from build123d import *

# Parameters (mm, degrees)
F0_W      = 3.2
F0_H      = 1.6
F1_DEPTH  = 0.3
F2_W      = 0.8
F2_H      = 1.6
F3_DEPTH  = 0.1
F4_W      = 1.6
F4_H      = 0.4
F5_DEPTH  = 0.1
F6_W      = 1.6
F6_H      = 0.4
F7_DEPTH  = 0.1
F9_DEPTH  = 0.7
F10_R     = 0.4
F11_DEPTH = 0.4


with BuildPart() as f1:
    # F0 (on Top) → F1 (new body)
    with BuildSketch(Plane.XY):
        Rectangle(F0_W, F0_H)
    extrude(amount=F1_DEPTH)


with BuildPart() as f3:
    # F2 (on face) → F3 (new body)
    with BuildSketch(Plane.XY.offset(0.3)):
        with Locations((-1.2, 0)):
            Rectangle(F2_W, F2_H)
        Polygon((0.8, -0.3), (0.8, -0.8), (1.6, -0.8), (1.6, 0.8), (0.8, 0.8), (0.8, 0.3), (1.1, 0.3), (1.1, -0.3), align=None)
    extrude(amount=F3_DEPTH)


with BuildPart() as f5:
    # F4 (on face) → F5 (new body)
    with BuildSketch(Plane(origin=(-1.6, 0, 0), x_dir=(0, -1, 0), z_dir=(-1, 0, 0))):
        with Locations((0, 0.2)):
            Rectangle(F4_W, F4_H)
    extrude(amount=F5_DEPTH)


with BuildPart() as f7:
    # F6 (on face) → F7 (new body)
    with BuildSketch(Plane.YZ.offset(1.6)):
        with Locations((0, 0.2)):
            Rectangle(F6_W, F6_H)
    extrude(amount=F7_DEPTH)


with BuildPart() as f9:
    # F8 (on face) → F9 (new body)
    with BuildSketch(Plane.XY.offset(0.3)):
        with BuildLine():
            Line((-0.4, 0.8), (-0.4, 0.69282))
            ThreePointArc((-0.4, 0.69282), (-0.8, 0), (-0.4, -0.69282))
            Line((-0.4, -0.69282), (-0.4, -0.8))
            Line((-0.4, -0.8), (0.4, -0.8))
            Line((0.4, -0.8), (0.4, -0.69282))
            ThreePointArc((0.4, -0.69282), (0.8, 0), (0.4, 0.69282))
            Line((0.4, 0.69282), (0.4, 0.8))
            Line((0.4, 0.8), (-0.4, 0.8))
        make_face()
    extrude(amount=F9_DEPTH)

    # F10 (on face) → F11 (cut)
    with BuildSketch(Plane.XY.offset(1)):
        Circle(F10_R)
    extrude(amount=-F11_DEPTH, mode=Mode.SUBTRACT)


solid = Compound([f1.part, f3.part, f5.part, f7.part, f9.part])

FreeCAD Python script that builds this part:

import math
import FreeCAD as App
import Part
import Sketcher
from FreeCAD import Vector
Q = App.Units.Quantity

doc = App.newDocument("Part")
body = doc.addObject("PartDesign::Body", "Body")

sketch1 = body.newObject("Sketcher::SketchObject", "Sketch")
sketch1.AttachmentSupport = (doc.getObject("XY_Plane"), [""])
sketch1.MapMode = "FlatFace"
sketch1.addGeometry([
    Part.LineSegment(Vector(-1.6, 0.8, 0), Vector(-1.6, -0.8, 0)),
    Part.LineSegment(Vector(-1.6, -0.8, 0), Vector(1.6, -0.8, 0)),
    Part.LineSegment(Vector(1.6, -0.8, 0), Vector(1.6, 0.8, 0)),
    Part.LineSegment(Vector(1.6, 0.8, 0), Vector(-1.6, 0.8, 0)),
], False)
sketch1.addConstraint([
    Sketcher.Constraint("Coincident", 0, 2, 1, 1),
    Sketcher.Constraint("Coincident", 1, 2, 2, 1),
    Sketcher.Constraint("Coincident", 2, 2, 3, 1),
    Sketcher.Constraint("Coincident", 3, 2, 0, 1),
    Sketcher.Constraint("Vertical", 0),
    Sketcher.Constraint("Horizontal", 1),
    Sketcher.Constraint("Vertical", 2),
    Sketcher.Constraint("Horizontal", 3),
    Sketcher.Constraint("Symmetric", 0, 2, 2, 2, -1, 1),
    Sketcher.Constraint("DistanceX", 1, 1, 1, 2, Q("3.2 mm")),
    Sketcher.Constraint("DistanceY", 0, 2, 0, 1, Q("1.6 mm")),
])
pad1 = body.newObject("PartDesign::Pad", "Pad")
pad1.Profile = sketch1
pad1.Length = 0.3
body2 = doc.addObject("PartDesign::Body", "Body001")
body2.AllowCompound = True

sketch2 = body2.newObject("Sketcher::SketchObject", "Sketch001")
sketch2.AttachmentSupport = (doc.getObject("XY_Plane001"), [""])
sketch2.MapMode = "FlatFace"
sketch2.AttachmentOffset = App.Placement(Vector(0, 0, 0.3), App.Rotation())
sketch2.addGeometry([
    Part.LineSegment(Vector(-1.6, 0.8, 0), Vector(-1.6, -0.8, 0)),
    Part.LineSegment(Vector(-1.6, -0.8, 0), Vector(-0.8, -0.8, 0)),
    Part.LineSegment(Vector(-0.8, -0.8, 0), Vector(-0.8, 0.8, 0)),
    Part.LineSegment(Vector(-0.8, 0.8, 0), Vector(-1.6, 0.8, 0)),
    Part.LineSegment(Vector(0.8, -0.3, 0), Vector(0.8, -0.8, 0)),
    Part.LineSegment(Vector(0.8, -0.8, 0), Vector(1.6, -0.8, 0)),
    Part.LineSegment(Vector(1.6, -0.8, 0), Vector(1.6, 0.8, 0)),
    Part.LineSegment(Vector(1.6, 0.8, 0), Vector(0.8, 0.8, 0)),
    Part.LineSegment(Vector(0.8, 0.8, 0), Vector(0.8, 0.3, 0)),
    Part.LineSegment(Vector(0.8, 0.3, 0), Vector(1.1, 0.3, 0)),
    Part.LineSegment(Vector(1.1, 0.3, 0), Vector(1.1, -0.3, 0)),
    Part.LineSegment(Vector(1.1, -0.3, 0), Vector(0.8, -0.3, 0)),
], False)
sketch2.addConstraint([
    Sketcher.Constraint("Coincident", 0, 2, 1, 1),
    Sketcher.Constraint("Coincident", 1, 2, 2, 1),
    Sketcher.Constraint("Coincident", 2, 2, 3, 1),
    Sketcher.Constraint("Coincident", 3, 2, 0, 1),
    Sketcher.Constraint("Coincident", 4, 2, 5, 1),
    Sketcher.Constraint("Coincident", 5, 2, 6, 1),
    Sketcher.Constraint("Coincident", 6, 2, 7, 1),
    Sketcher.Constraint("Coincident", 7, 2, 8, 1),
    Sketcher.Constraint("Coincident", 8, 2, 9, 1),
    Sketcher.Constraint("Coincident", 9, 2, 10, 1),
    Sketcher.Constraint("Coincident", 10, 2, 11, 1),
    Sketcher.Constraint("Coincident", 11, 2, 4, 1),
    Sketcher.Constraint("Vertical", 0),
    Sketcher.Constraint("Horizontal", 1),
    Sketcher.Constraint("Vertical", 2),
    Sketcher.Constraint("Horizontal", 3),
    Sketcher.Constraint("Vertical", 4),
    Sketcher.Constraint("Horizontal", 5),
    Sketcher.Constraint("Vertical", 6),
    Sketcher.Constraint("Horizontal", 7),
    Sketcher.Constraint("Vertical", 8),
    Sketcher.Constraint("Horizontal", 9),
    Sketcher.Constraint("Vertical", 10),
    Sketcher.Constraint("Horizontal", 11),
    Sketcher.Constraint("Symmetric", 2, 2, 4, 2, -1, 1),
    Sketcher.Constraint("Symmetric", 0, 2, 6, 2, -1, 1),
    Sketcher.Constraint("Symmetric", 2, 2, 7, 2, -2),
    Sketcher.Constraint("Equal", 4, 8),
    Sketcher.Constraint("DistanceX", 1, 1, 1, 2, Q("0.8 mm")),
    Sketcher.Constraint("DistanceX", 9, 1, 9, 2, Q("0.3 mm")),
    Sketcher.Constraint("DistanceY", 0, 2, 0, 1, Q("1.6 mm")),
    Sketcher.Constraint("DistanceY", 4, 2, 4, 1, Q("0.5 mm")),
    Sketcher.Constraint("DistanceX", 0, 2, -1, 1, Q("1.6 mm")),
])
pad2 = body2.newObject("PartDesign::Pad", "Pad001")
pad2.Profile = sketch2
pad2.Length = 0.1
body3 = doc.addObject("PartDesign::Body", "Body002")

sketch3 = body3.newObject("Sketcher::SketchObject", "Sketch002")
sketch3.AttachmentSupport = (doc.getObject("YZ_Plane002"), [""])
sketch3.MapMode = "FlatFace"
sketch3.AttachmentOffset = App.Placement(Vector(0, 0, -1.6), App.Rotation())
sketch3.addGeometry([
    Part.LineSegment(Vector(0.8, 0.4, 0), Vector(0.8, 0, 0)),
    Part.LineSegment(Vector(0.8, 0, 0), Vector(-0.8, 0, 0)),
    Part.LineSegment(Vector(-0.8, 0, 0), Vector(-0.8, 0.4, 0)),
    Part.LineSegment(Vector(-0.8, 0.4, 0), Vector(0.8, 0.4, 0)),
], False)
sketch3.addConstraint([
    Sketcher.Constraint("Coincident", 0, 2, 1, 1),
    Sketcher.Constraint("Coincident", 1, 2, 2, 1),
    Sketcher.Constraint("Coincident", 2, 2, 3, 1),
    Sketcher.Constraint("Coincident", 3, 2, 0, 1),
    Sketcher.Constraint("Vertical", 0),
    Sketcher.Constraint("Horizontal", 1),
    Sketcher.Constraint("Vertical", 2),
    Sketcher.Constraint("Horizontal", 3),
    Sketcher.Constraint("Symmetric", 0, 2, 1, 2, -1, 1),
    Sketcher.Constraint("DistanceX", 1, 2, 1, 1, Q("1.6 mm")),
    Sketcher.Constraint("DistanceY", 0, 2, 0, 1, Q("0.4 mm")),
])
pad3 = body3.newObject("PartDesign::Pad", "Pad002")
pad3.Profile = sketch3
pad3.Length = 0.1
pad3.Reversed = True
body4 = doc.addObject("PartDesign::Body", "Body003")

sketch4 = body4.newObject("Sketcher::SketchObject", "Sketch003")
sketch4.AttachmentSupport = (doc.getObject("YZ_Plane003"), [""])
sketch4.MapMode = "FlatFace"
sketch4.AttachmentOffset = App.Placement(Vector(0, 0, 1.6), App.Rotation())
sketch4.addGeometry([
    Part.LineSegment(Vector(-0.8, 0.4, 0), Vector(-0.8, 0, 0)),
    Part.LineSegment(Vector(-0.8, 0, 0), Vector(0.8, 0, 0)),
    Part.LineSegment(Vector(0.8, 0, 0), Vector(0.8, 0.4, 0)),
    Part.LineSegment(Vector(0.8, 0.4, 0), Vector(-0.8, 0.4, 0)),
], False)
sketch4.addConstraint([
    Sketcher.Constraint("Coincident", 0, 2, 1, 1),
    Sketcher.Constraint("Coincident", 1, 2, 2, 1),
    Sketcher.Constraint("Coincident", 2, 2, 3, 1),
    Sketcher.Constraint("Coincident", 3, 2, 0, 1),
    Sketcher.Constraint("Vertical", 0),
    Sketcher.Constraint("Horizontal", 1),
    Sketcher.Constraint("Vertical", 2),
    Sketcher.Constraint("Horizontal", 3),
    Sketcher.Constraint("Symmetric", 0, 2, 1, 2, -1, 1),
    Sketcher.Constraint("DistanceX", 1, 1, 1, 2, Q("1.6 mm")),
    Sketcher.Constraint("DistanceY", 0, 2, 0, 1, Q("0.4 mm")),
])
pad4 = body4.newObject("PartDesign::Pad", "Pad003")
pad4.Profile = sketch4
pad4.Length = 0.1
body5 = doc.addObject("PartDesign::Body", "Body004")

sketch5 = body5.newObject("Sketcher::SketchObject", "Sketch004")
sketch5.AttachmentSupport = (doc.getObject("XY_Plane004"), [""])
sketch5.MapMode = "FlatFace"
sketch5.AttachmentOffset = App.Placement(Vector(0, 0, 0.3), App.Rotation())
sketch5.addGeometry([
    Part.LineSegment(Vector(-0.4, 0.8, 0), Vector(-0.4, 0.69, 0)),
    Part.ArcOfCircle(Part.Circle(Vector(0, 0, 0), Vector(0, 0, 1), 0.8), math.radians(120), math.radians(240)),
    Part.LineSegment(Vector(-0.4, -0.69, 0), Vector(-0.4, -0.8, 0)),
    Part.LineSegment(Vector(-0.4, -0.8, 0), Vector(0.4, -0.8, 0)),
    Part.LineSegment(Vector(0.4, -0.8, 0), Vector(0.4, -0.69, 0)),
    Part.ArcOfCircle(Part.Circle(Vector(0, 0, 0), Vector(0, 0, 1), 0.8), math.radians(-60), math.radians(60)),
    Part.LineSegment(Vector(0.4, 0.69, 0), Vector(0.4, 0.8, 0)),
    Part.LineSegment(Vector(0.4, 0.8, 0), Vector(-0.4, 0.8, 0)),
], False)
sketch5.addConstraint([
    Sketcher.Constraint("Coincident", 0, 2, 1, 1),
    Sketcher.Constraint("Coincident", 1, 2, 2, 1),
    Sketcher.Constraint("Coincident", 2, 2, 3, 1),
    Sketcher.Constraint("Coincident", 3, 2, 4, 1),
    Sketcher.Constraint("Coincident", 4, 2, 5, 1),
    Sketcher.Constraint("Coincident", 5, 2, 6, 1),
    Sketcher.Constraint("Coincident", 6, 2, 7, 1),
    Sketcher.Constraint("Coincident", 7, 2, 0, 1),
    Sketcher.Constraint("Vertical", 0),
    Sketcher.Constraint("Vertical", 2),
    Sketcher.Constraint("Horizontal", 3),
    Sketcher.Constraint("Vertical", 4),
    Sketcher.Constraint("Vertical", 6),
    Sketcher.Constraint("Horizontal", 7),
    Sketcher.Constraint("Coincident", 1, 3, -1, 1),
    Sketcher.Constraint("Coincident", 5, 3, -1, 1),
    Sketcher.Constraint("Equal", 1, 5),
    Sketcher.Constraint("Symmetric", 2, 2, 6, 2, -1, 1),
    Sketcher.Constraint("Horizontal", 1, 2, 4, 2),
    Sketcher.Constraint("Horizontal", 0, 2, 5, 2),
    Sketcher.Constraint("Radius", 1, Q("0.799999 mm")),
    Sketcher.Constraint("DistanceX", 3, 1, 3, 2, Q("0.8 mm")),
    Sketcher.Constraint("DistanceY", 2, 2, -1, 1, Q("0.8 mm")),
])
pad5 = body5.newObject("PartDesign::Pad", "Pad004")
pad5.Profile = sketch5
pad5.Length = 0.7

sketch6 = body5.newObject("Sketcher::SketchObject", "Sketch005")
sketch6.AttachmentSupport = (doc.getObject("XY_Plane004"), [""])
sketch6.MapMode = "FlatFace"
sketch6.AttachmentOffset = App.Placement(Vector(0, 0, 1), App.Rotation())
sketch6.addGeometry(Part.Circle(Vector(0, 0, 0), Vector(0, 0, 1), 0.4), False)
sketch6.addConstraint([
    Sketcher.Constraint("Coincident", 0, 3, -1, 1),
    Sketcher.Constraint("Diameter", 0, Q("0.8 mm")),
])
pocket1 = body5.newObject("PartDesign::Pocket", "Pocket")
pocket1.Profile = sketch6
pocket1.Length = 0.4

doc.recompute()
